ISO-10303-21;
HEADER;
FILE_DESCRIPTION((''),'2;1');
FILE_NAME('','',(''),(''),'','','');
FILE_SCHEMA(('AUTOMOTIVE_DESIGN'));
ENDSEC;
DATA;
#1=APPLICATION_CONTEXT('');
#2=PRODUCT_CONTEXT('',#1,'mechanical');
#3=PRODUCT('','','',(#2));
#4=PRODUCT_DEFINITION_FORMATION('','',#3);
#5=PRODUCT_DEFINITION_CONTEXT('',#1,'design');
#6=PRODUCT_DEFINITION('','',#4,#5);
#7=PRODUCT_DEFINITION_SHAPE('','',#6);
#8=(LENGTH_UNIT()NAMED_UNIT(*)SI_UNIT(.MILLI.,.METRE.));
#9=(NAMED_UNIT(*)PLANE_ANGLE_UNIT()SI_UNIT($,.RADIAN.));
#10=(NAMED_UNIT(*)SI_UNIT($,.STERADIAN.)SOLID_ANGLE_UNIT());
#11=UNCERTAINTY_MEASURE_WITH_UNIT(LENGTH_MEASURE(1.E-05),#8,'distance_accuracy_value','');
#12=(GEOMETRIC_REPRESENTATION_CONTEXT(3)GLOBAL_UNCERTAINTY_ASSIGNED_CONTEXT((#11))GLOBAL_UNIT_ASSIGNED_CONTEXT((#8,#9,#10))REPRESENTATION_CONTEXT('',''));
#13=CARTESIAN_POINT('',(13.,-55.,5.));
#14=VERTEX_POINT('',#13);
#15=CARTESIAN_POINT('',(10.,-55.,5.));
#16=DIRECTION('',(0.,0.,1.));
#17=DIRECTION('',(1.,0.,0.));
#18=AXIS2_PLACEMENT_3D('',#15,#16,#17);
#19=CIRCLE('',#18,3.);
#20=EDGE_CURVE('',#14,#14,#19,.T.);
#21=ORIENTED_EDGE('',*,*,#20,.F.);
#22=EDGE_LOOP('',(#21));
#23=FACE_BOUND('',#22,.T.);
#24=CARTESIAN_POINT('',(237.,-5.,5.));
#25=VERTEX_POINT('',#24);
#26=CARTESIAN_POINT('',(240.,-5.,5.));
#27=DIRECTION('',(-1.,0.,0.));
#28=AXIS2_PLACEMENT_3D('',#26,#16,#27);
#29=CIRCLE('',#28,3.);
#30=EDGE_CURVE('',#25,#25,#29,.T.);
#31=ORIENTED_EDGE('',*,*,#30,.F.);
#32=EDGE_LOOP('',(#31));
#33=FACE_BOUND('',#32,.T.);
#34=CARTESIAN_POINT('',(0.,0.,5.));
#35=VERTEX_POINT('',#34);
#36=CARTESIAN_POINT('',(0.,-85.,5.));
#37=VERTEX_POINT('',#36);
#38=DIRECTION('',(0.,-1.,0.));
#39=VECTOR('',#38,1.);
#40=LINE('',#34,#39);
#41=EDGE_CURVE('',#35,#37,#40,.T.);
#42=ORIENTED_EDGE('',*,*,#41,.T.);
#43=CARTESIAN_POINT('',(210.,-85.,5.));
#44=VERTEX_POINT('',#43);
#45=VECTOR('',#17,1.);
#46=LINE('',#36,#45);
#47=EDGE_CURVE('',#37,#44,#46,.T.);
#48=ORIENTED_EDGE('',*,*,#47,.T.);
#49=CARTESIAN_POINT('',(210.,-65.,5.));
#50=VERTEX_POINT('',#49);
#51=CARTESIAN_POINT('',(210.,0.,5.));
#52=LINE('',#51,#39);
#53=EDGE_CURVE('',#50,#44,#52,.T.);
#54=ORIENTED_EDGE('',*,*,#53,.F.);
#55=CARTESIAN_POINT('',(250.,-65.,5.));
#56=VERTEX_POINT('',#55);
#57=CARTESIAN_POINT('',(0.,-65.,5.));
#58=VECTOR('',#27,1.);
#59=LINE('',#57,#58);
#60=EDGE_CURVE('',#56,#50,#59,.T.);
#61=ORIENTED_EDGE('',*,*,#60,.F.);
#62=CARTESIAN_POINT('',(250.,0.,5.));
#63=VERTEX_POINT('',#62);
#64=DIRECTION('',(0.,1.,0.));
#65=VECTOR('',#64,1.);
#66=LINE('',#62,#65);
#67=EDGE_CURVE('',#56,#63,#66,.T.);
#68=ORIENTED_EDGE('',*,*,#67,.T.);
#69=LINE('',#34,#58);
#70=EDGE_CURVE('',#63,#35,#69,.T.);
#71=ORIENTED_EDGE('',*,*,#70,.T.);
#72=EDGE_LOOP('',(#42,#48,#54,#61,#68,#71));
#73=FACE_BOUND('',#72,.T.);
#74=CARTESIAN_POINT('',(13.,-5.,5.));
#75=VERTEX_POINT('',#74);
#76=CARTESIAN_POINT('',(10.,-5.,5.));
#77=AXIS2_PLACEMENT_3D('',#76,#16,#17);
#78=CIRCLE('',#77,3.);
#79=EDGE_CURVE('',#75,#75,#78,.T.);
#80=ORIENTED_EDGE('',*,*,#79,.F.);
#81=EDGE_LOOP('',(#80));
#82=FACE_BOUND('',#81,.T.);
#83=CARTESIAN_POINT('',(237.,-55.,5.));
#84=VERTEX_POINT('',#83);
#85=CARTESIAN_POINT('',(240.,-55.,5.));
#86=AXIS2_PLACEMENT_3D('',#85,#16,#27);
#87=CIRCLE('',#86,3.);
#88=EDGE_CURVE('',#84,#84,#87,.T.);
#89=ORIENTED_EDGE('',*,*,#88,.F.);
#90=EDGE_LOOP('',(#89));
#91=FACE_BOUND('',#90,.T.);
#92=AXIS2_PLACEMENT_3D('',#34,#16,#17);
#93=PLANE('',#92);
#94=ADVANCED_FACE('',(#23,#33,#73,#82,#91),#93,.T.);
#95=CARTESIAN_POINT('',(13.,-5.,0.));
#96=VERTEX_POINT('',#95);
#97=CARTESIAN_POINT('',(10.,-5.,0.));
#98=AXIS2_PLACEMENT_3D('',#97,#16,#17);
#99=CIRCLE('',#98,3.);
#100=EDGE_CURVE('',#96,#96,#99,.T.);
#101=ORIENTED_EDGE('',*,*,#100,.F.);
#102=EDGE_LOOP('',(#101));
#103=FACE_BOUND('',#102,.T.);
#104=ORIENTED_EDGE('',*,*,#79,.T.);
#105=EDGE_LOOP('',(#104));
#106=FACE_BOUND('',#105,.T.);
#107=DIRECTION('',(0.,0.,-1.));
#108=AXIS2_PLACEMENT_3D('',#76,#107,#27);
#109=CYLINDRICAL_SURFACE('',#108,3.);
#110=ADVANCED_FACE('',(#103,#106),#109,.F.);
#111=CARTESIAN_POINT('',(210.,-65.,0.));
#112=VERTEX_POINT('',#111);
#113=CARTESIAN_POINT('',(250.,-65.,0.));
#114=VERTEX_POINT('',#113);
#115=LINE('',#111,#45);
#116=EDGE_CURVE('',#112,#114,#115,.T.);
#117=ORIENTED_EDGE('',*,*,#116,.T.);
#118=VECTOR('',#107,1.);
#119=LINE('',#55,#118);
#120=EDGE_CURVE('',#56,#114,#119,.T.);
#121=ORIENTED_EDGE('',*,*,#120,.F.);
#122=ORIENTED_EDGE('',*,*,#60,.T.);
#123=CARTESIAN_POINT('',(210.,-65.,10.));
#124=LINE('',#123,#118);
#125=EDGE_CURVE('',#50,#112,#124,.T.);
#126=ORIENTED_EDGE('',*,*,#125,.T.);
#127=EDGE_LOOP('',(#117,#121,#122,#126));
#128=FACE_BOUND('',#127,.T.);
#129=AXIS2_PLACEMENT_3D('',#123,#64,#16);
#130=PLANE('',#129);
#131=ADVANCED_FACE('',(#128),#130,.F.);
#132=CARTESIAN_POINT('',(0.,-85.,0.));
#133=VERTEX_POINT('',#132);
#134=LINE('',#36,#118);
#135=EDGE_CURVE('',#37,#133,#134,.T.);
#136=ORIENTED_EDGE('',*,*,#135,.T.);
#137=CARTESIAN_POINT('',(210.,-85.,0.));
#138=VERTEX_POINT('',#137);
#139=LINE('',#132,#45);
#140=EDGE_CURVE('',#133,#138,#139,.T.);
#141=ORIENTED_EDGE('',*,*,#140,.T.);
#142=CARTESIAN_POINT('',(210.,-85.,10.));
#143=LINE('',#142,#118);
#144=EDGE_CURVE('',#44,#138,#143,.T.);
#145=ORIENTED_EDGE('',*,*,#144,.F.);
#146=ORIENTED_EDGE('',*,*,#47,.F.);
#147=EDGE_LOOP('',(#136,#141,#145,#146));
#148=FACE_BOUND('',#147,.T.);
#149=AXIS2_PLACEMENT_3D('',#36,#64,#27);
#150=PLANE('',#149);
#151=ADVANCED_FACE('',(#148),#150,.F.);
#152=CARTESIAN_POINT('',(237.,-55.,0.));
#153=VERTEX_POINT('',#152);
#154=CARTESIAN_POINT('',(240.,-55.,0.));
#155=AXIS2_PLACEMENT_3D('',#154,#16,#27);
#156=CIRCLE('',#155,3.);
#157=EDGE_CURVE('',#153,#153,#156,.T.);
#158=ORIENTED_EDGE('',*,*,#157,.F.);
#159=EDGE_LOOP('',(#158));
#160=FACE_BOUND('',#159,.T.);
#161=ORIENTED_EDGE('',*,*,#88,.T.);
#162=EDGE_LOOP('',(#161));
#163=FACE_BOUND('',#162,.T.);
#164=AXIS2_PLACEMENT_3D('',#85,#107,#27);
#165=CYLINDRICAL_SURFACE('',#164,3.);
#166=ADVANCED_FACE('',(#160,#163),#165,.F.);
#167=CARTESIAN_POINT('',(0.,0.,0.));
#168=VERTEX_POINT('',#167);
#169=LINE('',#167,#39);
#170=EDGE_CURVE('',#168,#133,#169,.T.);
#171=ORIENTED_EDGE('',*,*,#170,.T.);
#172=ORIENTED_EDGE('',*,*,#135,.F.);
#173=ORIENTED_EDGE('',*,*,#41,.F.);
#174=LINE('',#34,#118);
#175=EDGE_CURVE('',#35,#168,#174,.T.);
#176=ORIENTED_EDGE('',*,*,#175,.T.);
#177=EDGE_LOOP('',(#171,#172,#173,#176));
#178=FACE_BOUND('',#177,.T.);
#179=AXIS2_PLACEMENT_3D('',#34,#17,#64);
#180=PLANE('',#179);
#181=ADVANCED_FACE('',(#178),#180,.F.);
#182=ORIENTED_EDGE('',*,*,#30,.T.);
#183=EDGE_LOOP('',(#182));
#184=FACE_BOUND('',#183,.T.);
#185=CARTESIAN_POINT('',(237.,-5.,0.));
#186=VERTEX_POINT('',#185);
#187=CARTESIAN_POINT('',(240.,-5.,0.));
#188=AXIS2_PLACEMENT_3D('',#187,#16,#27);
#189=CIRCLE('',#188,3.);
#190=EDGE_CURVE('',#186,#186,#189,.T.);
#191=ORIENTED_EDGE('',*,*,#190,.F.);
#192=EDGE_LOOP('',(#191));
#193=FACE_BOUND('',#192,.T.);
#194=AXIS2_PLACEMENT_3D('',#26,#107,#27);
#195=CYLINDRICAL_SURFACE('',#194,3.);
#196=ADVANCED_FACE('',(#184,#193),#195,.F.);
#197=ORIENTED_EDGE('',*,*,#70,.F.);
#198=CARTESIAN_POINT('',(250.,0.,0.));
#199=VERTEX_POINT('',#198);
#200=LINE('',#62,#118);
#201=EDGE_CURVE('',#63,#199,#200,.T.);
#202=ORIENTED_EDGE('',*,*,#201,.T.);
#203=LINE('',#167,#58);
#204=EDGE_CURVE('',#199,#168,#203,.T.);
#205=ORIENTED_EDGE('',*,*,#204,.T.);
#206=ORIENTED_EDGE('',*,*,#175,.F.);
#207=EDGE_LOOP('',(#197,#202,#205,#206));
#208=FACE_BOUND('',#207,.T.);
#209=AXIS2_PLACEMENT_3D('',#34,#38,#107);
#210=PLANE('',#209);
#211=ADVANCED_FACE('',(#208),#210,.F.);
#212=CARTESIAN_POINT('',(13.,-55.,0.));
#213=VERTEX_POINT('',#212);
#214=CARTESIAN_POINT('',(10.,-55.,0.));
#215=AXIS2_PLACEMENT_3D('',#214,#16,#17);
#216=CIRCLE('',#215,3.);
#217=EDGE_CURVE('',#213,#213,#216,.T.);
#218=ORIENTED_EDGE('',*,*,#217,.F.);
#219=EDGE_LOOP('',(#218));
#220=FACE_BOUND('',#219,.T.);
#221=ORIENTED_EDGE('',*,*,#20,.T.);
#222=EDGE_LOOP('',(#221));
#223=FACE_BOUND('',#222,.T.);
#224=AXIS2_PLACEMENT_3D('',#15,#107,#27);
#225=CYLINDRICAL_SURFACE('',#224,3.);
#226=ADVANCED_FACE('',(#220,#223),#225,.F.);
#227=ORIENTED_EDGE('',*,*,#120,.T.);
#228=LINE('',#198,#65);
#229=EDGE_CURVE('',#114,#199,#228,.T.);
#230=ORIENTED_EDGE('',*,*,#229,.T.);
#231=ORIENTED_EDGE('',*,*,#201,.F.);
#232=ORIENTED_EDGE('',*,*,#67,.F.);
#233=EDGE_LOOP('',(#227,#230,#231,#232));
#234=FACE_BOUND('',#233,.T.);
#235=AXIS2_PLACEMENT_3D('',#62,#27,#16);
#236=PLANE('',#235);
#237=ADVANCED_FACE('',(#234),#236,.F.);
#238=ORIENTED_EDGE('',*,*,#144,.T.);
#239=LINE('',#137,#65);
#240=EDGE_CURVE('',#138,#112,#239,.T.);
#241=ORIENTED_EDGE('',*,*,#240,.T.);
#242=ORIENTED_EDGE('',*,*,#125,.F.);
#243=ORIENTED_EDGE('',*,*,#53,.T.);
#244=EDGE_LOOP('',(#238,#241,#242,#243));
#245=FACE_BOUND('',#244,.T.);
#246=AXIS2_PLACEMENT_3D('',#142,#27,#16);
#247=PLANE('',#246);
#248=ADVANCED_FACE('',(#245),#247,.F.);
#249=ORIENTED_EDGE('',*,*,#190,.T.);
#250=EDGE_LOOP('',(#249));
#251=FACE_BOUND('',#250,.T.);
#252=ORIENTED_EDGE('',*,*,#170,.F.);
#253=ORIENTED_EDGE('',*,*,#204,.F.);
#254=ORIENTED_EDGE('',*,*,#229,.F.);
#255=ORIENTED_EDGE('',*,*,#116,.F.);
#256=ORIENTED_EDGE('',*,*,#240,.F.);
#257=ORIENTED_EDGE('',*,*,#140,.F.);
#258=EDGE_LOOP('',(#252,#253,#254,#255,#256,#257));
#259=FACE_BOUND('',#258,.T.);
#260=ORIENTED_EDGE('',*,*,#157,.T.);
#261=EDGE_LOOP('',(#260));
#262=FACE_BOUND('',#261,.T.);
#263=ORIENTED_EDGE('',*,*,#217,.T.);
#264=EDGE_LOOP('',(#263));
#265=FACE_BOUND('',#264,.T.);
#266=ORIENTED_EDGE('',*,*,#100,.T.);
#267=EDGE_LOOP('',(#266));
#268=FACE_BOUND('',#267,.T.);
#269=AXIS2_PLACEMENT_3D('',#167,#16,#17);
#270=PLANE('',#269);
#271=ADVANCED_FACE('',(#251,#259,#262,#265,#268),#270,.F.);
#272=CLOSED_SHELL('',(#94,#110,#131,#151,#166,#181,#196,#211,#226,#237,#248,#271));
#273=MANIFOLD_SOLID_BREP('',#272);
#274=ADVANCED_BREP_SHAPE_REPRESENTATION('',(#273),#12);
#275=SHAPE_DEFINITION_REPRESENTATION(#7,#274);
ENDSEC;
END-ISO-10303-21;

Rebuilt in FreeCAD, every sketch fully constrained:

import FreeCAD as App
import Part
import Sketcher

V = App.Vector

doc = App.newDocument("Part")
body = doc.addObject("PartDesign::Body", "Body")

sketch1 = body.newObject("Sketcher::SketchObject", "Sketch")
sketch1.AttachmentSupport = (doc.getObject("XY_Plane"), [""])
sketch1.MapMode = "FlatFace"
sketch1.addGeometry([
    Part.LineSegment(V(0, 0, 0), V(0, -85, 0)),
    Part.LineSegment(V(0, -85, 0), V(250, -85, 0)),
    Part.LineSegment(V(250, -85, 0), V(250, 0, 0)),
    Part.LineSegment(V(250, 0, 0), V(0, 0, 0)),
    Part.Circle(V(10, -55, 0), V(0, 0, 1), 3),
    Part.Circle(V(240, -55, 0), V(0, 0, 1), 3),
    Part.Circle(V(10, -5, 0), V(0, 0, 1), 3),
    Part.Circle(V(240, -5, 0), V(0, 0, 1), 3),
], False)
sketch1.addConstraint([
    Sketcher.Constraint("Coincident", 0, 2, 1, 1),
    Sketcher.Constraint("Coincident", 1, 2, 2, 1),
    Sketcher.Constraint("Coincident", 2, 2, 3, 1),
    Sketcher.Constraint("Coincident", 3, 2, 0, 1),
    Sketcher.Constraint("Vertical", 0),
    Sketcher.Constraint("Horizontal", 1),
    Sketcher.Constraint("Vertical", 2),
    Sketcher.Constraint("Horizontal", 3),
    Sketcher.Constraint("Coincident", 3, 2, -1, 1),
    Sketcher.Constraint("Equal", 4, 5),
    Sketcher.Constraint("Equal", 5, 6),
    Sketcher.Constraint("Equal", 6, 7),
    Sketcher.Constraint("Horizontal", 4, 3, 5, 3),
    Sketcher.Constraint("Horizontal", 6, 3, 7, 3),
    Sketcher.Constraint("Vertical", 4, 3, 6, 3),
    Sketcher.Constraint("Vertical", 5, 3, 7, 3),
    Sketcher.Constraint("Diameter", 4, 6.0),
    Sketcher.Constraint("DistanceX", 1, 1, 1, 2, 250.0),
    Sketcher.Constraint("DistanceY", 0, 2, 0, 1, 85.0),
    Sketcher.Constraint("DistanceX", -1, 1, 4, 3, 10.0),
    Sketcher.Constraint("DistanceY", 4, 3, -1, 1, 55.0),
    Sketcher.Constraint("DistanceX", -1, 1, 5, 3, 240.0),
    Sketcher.Constraint("DistanceY", 6, 3, -1, 1, 5.0),
])
pad1 = body.newObject("PartDesign::Pad", "Pad")
pad1.Profile = sketch1
pad1.Length = 5

sketch2 = body.newObject("Sketcher::SketchObject", "Sketch001")
sketch2.AttachmentSupport = (doc.getObject("XY_Plane"), [""])
sketch2.MapMode = "FlatFace"
sketch2.addGeometry([
    Part.LineSegment(V(250, -65, 0), V(250, -85, 0)),
    Part.LineSegment(V(250, -85, 0), V(210, -85, 0)),
    Part.LineSegment(V(210, -85, 0), V(210, -65, 0)),
    Part.LineSegment(V(210, -65, 0), V(250, -65, 0)),
], False)
sketch2.addConstraint([
    Sketcher.Constraint("Coincident", 0, 2, 1, 1),
    Sketcher.Constraint("Coincident", 1, 2, 2, 1),
    Sketcher.Constraint("Coincident", 2, 2, 3, 1),
    Sketcher.Constraint("Coincident", 3, 2, 0, 1),
    Sketcher.Constraint("Vertical", 0),
    Sketcher.Constraint("Horizontal", 1),
    Sketcher.Constraint("Vertical", 2),
    Sketcher.Constraint("Horizontal", 3),
    Sketcher.Constraint("DistanceX", 1, 2, 1, 1, 40.0),
    Sketcher.Constraint("DistanceY", 0, 2, 0, 1, 20.0),
    Sketcher.Constraint("DistanceX", -1, 1, 0, 2, 250.0),
    Sketcher.Constraint("DistanceY", 0, 2, -1, 1, 85.0),
])
pocket1 = body.newObject("PartDesign::Pocket", "Pocket")
pocket1.Profile = sketch2
pocket1.Length = 10
pocket1.Reversed = True

doc.recompute()
